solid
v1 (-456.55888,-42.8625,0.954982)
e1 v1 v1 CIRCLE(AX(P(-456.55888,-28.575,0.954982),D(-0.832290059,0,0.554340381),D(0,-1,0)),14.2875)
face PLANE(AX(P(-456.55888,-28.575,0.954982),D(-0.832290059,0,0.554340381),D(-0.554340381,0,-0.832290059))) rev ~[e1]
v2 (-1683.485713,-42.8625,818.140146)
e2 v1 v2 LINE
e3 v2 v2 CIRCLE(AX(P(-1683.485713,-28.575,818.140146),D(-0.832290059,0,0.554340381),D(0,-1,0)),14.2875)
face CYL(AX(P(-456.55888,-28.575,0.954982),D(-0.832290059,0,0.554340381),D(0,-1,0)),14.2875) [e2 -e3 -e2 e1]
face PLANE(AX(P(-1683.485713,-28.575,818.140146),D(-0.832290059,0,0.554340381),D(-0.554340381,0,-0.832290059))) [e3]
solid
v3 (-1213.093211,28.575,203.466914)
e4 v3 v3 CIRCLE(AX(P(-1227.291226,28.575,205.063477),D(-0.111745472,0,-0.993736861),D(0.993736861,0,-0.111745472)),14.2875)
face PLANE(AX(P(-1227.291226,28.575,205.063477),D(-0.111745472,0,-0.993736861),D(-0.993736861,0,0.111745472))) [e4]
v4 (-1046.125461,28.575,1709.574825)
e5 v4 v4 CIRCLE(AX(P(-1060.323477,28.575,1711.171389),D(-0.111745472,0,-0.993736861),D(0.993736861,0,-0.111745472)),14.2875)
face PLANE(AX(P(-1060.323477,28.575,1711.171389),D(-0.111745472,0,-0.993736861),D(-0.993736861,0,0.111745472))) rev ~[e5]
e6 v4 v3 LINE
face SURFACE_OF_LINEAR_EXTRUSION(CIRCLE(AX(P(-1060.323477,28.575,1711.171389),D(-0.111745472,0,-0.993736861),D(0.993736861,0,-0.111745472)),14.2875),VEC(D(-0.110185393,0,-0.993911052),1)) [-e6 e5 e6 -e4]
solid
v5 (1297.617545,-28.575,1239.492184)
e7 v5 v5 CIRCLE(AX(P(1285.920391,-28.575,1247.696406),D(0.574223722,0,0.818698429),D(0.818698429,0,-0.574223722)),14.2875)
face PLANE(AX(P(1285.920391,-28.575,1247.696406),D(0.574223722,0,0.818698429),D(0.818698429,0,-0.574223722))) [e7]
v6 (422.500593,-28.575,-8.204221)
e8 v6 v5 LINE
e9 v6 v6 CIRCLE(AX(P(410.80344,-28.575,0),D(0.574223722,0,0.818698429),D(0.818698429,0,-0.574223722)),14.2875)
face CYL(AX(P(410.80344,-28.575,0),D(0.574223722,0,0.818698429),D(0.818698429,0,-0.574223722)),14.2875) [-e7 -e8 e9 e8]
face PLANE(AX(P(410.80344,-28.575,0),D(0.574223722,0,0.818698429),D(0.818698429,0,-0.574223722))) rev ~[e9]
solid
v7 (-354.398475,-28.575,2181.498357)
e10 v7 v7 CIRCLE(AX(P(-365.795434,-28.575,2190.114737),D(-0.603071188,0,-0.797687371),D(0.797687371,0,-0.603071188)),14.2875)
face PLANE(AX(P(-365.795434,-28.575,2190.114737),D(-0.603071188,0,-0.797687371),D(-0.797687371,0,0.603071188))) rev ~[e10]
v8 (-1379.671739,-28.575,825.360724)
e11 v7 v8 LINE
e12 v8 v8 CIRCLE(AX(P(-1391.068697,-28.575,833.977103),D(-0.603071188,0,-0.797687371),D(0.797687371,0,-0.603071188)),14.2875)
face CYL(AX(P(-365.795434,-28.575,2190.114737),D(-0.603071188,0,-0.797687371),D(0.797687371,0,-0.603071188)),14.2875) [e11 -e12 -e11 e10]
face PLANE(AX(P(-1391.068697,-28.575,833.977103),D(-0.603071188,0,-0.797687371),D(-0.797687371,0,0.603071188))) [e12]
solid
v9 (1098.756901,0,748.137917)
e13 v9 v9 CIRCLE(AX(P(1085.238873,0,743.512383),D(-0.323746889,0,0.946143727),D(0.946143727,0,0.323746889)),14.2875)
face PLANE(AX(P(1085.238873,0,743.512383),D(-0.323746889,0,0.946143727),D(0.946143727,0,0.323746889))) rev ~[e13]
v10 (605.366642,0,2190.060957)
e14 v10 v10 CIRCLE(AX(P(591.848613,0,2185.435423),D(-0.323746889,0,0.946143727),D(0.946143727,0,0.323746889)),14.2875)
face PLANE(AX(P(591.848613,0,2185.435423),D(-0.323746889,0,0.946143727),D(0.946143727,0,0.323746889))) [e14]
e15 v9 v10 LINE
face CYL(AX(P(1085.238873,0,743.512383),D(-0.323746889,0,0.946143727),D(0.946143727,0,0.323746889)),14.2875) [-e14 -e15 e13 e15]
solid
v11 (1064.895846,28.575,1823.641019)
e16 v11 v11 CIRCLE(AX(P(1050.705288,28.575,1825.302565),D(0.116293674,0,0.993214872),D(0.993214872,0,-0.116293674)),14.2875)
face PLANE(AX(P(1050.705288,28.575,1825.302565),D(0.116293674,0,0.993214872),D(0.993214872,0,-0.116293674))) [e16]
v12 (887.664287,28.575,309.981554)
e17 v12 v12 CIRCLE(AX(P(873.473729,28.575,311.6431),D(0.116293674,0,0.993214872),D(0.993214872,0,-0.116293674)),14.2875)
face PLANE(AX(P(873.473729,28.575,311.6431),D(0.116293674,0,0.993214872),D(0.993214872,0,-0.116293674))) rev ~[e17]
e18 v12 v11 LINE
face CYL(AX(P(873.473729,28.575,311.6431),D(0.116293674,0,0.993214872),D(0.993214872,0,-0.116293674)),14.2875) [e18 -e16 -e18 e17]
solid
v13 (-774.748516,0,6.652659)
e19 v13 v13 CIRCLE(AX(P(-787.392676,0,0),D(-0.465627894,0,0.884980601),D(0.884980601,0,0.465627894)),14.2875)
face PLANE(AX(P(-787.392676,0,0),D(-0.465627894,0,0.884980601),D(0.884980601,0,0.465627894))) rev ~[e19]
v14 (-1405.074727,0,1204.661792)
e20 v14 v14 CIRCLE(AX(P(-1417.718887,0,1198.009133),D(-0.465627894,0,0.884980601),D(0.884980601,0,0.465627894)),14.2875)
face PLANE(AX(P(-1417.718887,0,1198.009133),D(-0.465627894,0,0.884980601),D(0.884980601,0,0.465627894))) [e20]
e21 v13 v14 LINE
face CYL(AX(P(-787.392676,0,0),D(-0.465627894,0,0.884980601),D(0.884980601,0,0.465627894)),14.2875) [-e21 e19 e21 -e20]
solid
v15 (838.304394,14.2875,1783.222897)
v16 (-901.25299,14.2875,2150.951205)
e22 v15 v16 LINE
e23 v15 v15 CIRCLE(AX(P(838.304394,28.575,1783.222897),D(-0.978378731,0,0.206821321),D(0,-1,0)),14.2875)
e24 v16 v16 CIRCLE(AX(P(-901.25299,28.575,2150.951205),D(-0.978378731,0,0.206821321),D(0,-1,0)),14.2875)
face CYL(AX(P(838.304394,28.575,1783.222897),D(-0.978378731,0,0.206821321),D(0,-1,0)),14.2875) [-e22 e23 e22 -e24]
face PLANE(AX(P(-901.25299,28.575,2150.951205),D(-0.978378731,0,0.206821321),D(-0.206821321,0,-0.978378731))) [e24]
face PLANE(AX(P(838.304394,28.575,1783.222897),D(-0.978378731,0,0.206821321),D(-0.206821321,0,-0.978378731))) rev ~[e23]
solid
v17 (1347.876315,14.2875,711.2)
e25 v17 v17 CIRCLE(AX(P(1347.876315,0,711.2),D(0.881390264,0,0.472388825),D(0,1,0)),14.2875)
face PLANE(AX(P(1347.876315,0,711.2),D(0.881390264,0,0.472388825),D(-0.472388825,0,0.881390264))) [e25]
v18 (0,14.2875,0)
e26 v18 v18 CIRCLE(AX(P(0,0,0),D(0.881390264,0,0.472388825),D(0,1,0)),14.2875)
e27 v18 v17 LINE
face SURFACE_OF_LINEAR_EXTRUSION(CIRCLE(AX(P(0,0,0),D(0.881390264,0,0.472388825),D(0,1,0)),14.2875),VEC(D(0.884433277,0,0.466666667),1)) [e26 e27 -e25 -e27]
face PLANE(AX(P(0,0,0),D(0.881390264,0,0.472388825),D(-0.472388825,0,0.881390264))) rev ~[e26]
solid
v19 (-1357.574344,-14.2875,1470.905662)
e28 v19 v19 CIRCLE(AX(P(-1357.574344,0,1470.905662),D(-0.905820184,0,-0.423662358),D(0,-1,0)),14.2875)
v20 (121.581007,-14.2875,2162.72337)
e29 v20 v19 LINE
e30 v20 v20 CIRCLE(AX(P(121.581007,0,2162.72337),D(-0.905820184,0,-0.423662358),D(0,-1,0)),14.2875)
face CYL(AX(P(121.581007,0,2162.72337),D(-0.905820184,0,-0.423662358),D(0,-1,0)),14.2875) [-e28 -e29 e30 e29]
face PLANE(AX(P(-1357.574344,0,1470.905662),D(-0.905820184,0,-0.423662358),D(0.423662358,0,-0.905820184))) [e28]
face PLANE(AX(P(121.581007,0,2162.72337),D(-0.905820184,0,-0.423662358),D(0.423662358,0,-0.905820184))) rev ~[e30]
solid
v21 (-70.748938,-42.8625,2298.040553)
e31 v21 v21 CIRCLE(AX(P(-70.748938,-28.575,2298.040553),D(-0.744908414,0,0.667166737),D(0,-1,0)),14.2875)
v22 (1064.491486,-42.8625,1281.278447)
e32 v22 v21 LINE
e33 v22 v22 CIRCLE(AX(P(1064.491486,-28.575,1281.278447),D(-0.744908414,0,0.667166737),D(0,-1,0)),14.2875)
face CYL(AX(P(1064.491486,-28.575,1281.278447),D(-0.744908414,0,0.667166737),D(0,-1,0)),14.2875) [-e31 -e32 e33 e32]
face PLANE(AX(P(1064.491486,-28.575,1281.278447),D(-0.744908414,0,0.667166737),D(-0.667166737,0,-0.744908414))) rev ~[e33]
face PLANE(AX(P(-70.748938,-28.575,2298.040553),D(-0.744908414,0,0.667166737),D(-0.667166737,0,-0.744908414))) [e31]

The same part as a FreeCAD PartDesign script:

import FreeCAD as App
import Part
import Sketcher

V = App.Vector
Q = App.Units.Quantity

doc = App.newDocument("Part")
params = doc.addObject("Spreadsheet::Sheet", "Params")
for row, (alias, value) in enumerate([
    ("sketch1_diameter", "1.125 in"),
    ("sketch2_width", "60 in"),
    ("sketch3_diameter", "1.125 in"),
    ("sketch4_width", "60 in"),
    ("sketch5_diameter", "1.125 in"),
    ("sketch6_width", "60 in"),
    ("sketch7_diameter", "1.125 in"),
    ("sketch8_width", "60 in"),
    ("sketch9_diameter", "1.125 in"),
    ("sketch10_width", "60 in"),
    ("sketch11_diameter", "1.125 in"),
    ("sketch12_width", "70 in"),
    ("sketch13_diameter", "1.125 in"),
    ("sketch15_diameter", "1.125 in"),
    ("sketch17_diameter", "1.125 in"),
    ("sketch19_diameter", "1.125 in"),
    ("sketch21_diameter", "1.125 in"),
], start=1):
    params.set(f"A{row}", alias)
    params.set(f"B{row}", "=" + value)
    params.setAlias(f"B{row}", alias)

body = doc.addObject("PartDesign::Body", "Body")

sketch1 = body.newObject("Sketcher::SketchObject", "Sketch")
sketch1.Placement = App.Placement(V(0, 0, 0), App.Rotation(V(0, 1, 0), V(-0.472388825, 0, 0.881390264), V(0.881390264, 0, 0.472388825), "ZXY"))
sketch1.addGeometry(Part.Circle(V(0, 0, 0), V(0, 0, 1), 14), False)
sketch1.addConstraint([
    Sketcher.Constraint("Coincident", 0, 3, -1, 1),
    Sketcher.Constraint("Diameter", 0, Q("1.125 in")),
])
sketch1.setExpression("Constraints[1]", "Params.sketch1_diameter")

sketch2 = body.newObject("Sketcher::SketchObject", "Sketch001")
sketch2.Placement = App.Placement(V(0, 0, 0), App.Rotation(V(0.884433277, 0, 0.466666667), V(0, 1, 0), V(-0.466666667, 0, 0.884433277), "ZXY"))
sketch2.addGeometry(Part.LineSegment(V(0, 0, 0), V(1524, 0, 0)), False)
sketch2.addConstraint([
    Sketcher.Constraint("Horizontal", 0),
    Sketcher.Constraint("Coincident", 0, 1, -1, 1),
    Sketcher.Constraint("DistanceX", 0, 1, 0, 2, Q("60 in")),
])
sketch2.setExpression("Constraints[2]", "Params.sketch2_width")
doc.recompute()

additivepipe = body.newObject("PartDesign::AdditivePipe", "AdditivePipe")
additivepipe.Profile = sketch1
additivepipe.Spine = (sketch2, ["Edge1"])
body2 = doc.addObject("PartDesign::Body", "Body001")

sketch3 = body2.newObject("Sketcher::SketchObject", "Sketch002")
sketch3.Placement = App.Placement(V(135.455402, 0, 193.125294), App.Rotation(V(0.818698429, 0, -0.574223722), V(0, 1.000000001, 0), V(0.574223722, 0, 0.818698429), "ZXY"))
sketch3.addGeometry(Part.Circle(V(336, -29, 0), V(0, 0, 1), 14), False)
sketch3.addConstraint([
    Sketcher.Constraint("Diameter", 0, Q("1.125 in")),
    Sketcher.Constraint("DistanceY", 0, 3, -1, 1, Q("1.125 in")),
    Sketcher.Constraint("DistanceX", -1, 1, 0, 3, 336.324131),
])
sketch3.setExpression("Constraints[0]", "Params.sketch3_diameter")

sketch4 = body2.newObject("Sketcher::SketchObject", "Sketch003")
sketch4.Placement = App.Placement(V(275.348037, 0, -193.125294), App.Rotation(V(0.574223722, 0, 0.818698429), V(0, 1.000000001, 0), V(-0.818698429, 0, 0.574223722), "ZXY"))
sketch4.addGeometry(Part.LineSegment(V(236, -29, 0), V(1760, -29, 0)), False)
sketch4.addConstraint([
    Sketcher.Constraint("Horizontal", 0),
    Sketcher.Constraint("DistanceX", 0, 1, 0, 2, Q("60 in")),
    Sketcher.Constraint("DistanceY", 0, 1, -1, 1, Q("1.125 in")),
    Sketcher.Constraint("DistanceX", -1, 1, 0, 1, 235.89308),
])
sketch4.setExpression("Constraints[1]", "Params.sketch4_width")
doc.recompute()

additivepipe2 = body2.newObject("PartDesign::AdditivePipe", "AdditivePipe001")
additivepipe2.Profile = sketch3
additivepipe2.Spine = (sketch4, ["Edge1"])
body3 = doc.addObject("PartDesign::Body", "Body002")

sketch5 = body3.newObject("Sketcher::SketchObject", "Sketch004")
sketch5.Placement = App.Placement(V(47.809263, 0, 408.31861), App.Rotation(V(0.993214872, 0, -0.116293674), V(0, 1.000000001, 0), V(0.116293674, 0, 0.993214872), "ZXY"))
sketch5.addGeometry(Part.Circle(V(831, 29, 0), V(0, 0, 1), 14), False)
sketch5.addConstraint([
    Sketcher.Constraint("Diameter", 0, Q("1.125 in")),
    Sketcher.Constraint("DistanceY", -1, 1, 0, 3, Q("1.125 in")),
    Sketcher.Constraint("DistanceX", -1, 1, 0, 3, 831.304978),
])
sketch5.setExpression("Constraints[0]", "Params.sketch5_diameter")

sketch6 = body3.newObject("Sketcher::SketchObject", "Sketch005")
sketch6.Placement = App.Placement(V(825.664466, 0, -96.67551), App.Rotation(V(0.116293674, 0, 0.993214872), V(0, 1.000000001, 0), V(-0.993214872, 0, 0.116293674), "ZXY"))
sketch6.addGeometry(Part.LineSegment(V(411, 29, 0), V(1935, 29, 0)), False)
sketch6.addConstraint([
    Sketcher.Constraint("Horizontal", 0),
    Sketcher.Constraint("DistanceX", 0, 1, 0, 2, Q("60 in")),
    Sketcher.Constraint("DistanceY", -1, 1, 0, 1, Q("1.125 in")),
    Sketcher.Constraint("DistanceX", -1, 1, 0, 1, 411.108031),
])
sketch6.setExpression("Constraints[1]", "Params.sketch6_width")
doc.recompute()

additivepipe3 = body3.newObject("PartDesign::AdditivePipe", "AdditivePipe002")
additivepipe3.Profile = sketch5
additivepipe3.Spine = (sketch6, ["Edge1"])
body4 = doc.addObject("PartDesign::Body", "Body003")

sketch7 = body4.newObject("Sketcher::SketchObject", "Sketch006")
sketch7.Placement = App.Placement(V(-113.999978, 0, 333.162627), App.Rotation(V(0.946143727, 0, 0.323746889), V(0, 1, 0), V(-0.323746889, 0, 0.946143727), "ZXY"))
sketch7.addGeometry(Part.Circle(V(1268, 0, 0), V(0, 0, 1), 14), False)
sketch7.addConstraint([
    Sketcher.Constraint("PointOnObject", 0, 3, -1),
    Sketcher.Constraint("Diameter", 0, Q("1.125 in")),
    Sketcher.Constraint("DistanceX", -1, 1, 0, 3, 1267.501773),
])
sketch7.setExpression("Constraints[1]", "Params.sketch7_diameter")

sketch8 = body4.newObject("Sketcher::SketchObject", "Sketch007")
sketch8.Placement = App.Placement(V(1199.238851, 0, 410.349756), App.Rotation(V(-0.323746889, 0, 0.946143727), V(0, 1, 0), V(-0.946143727, 0, -0.323746889), "ZXY"))
sketch8.addGeometry(Part.LineSegment(V(352, 0, 0), V(1876, 0, 0)), False)
sketch8.addConstraint([
    Sketcher.Constraint("Horizontal", 0),
    Sketcher.Constraint("PointOnObject", 0, 1, -1),
    Sketcher.Constraint("DistanceX", 0, 1, 0, 2, Q("60 in")),
    Sketcher.Constraint("DistanceX", -1, 1, 0, 1, 352.126868),
])
sketch8.setExpression("Constraints[2]", "Params.sketch8_width")
doc.recompute()

additivepipe4 = body4.newObject("PartDesign::AdditivePipe", "AdditivePipe003")
additivepipe4.Profile = sketch7
additivepipe4.Spine = (sketch8, ["Edge1"])
body5 = doc.addObject("PartDesign::Body", "Body004")

sketch9 = body5.newObject("Sketcher::SketchObject", "Sketch008")
sketch9.Placement = App.Placement(V(-46.093216, 0, 41.28274), App.Rotation(V(0, -1, 0), V(0.667166737, 0, 0.744908414), V(-0.744908414, 0, 0.667166737), "ZXY"))
sketch9.addGeometry(Part.Circle(V(29, 1665, 0), V(0, 0, 1), 14), False)
sketch9.addConstraint([
    Sketcher.Constraint("Diameter", 0, Q("1.125 in")),
    Sketcher.Constraint("DistanceX", -1, 1, 0, 3, Q("1.125 in")),
    Sketcher.Constraint("DistanceY", -1, 1, 0, 3, 1664.628407),
])
sketch9.setExpression("Constraints[0]", "Params.sketch9_diameter")

sketch10 = body5.newObject("Sketcher::SketchObject", "Sketch009")
sketch10.Placement = App.Placement(V(1110.584702, 0, 1239.995707), App.Rotation(V(-0.744908414, 0, 0.667166737), V(0, 1, 0), V(-0.667166737, 0, -0.744908414), "ZXY"))
sketch10.addGeometry(Part.LineSegment(V(62, -29, 0), V(1586, -29, 0)), False)
sketch10.addConstraint([
    Sketcher.Constraint("Horizontal", 0),
    Sketcher.Constraint("DistanceX", 0, 1, 0, 2, Q("60 in")),
    Sketcher.Constraint("DistanceY", 0, 1, -1, 1, Q("1.125 in")),
    Sketcher.Constraint("DistanceX", -1, 1, 0, 1, 61.877695),
])
sketch10.setExpression("Constraints[1]", "Params.sketch10_width")
doc.recompute()

additivepipe5 = body5.newObject("PartDesign::AdditivePipe", "AdditivePipe004")
additivepipe5.Profile = sketch9
additivepipe5.Spine = (sketch10, ["Edge1"])
body6 = doc.addObject("PartDesign::Body", "Body005")

sketch11 = body6.newObject("Sketcher::SketchObject", "Sketch010")
sketch11.Placement = App.Placement(V(441.611468, 0, -93.353079), App.Rotation(V(0, -1, 0), V(0.206821321, 0, 0.978378731), V(-0.978378731, 0, 0.206821321), "ZXY"))
sketch11.addGeometry(Part.Circle(V(-29, 1918, 0), V(0, 0, 1), 14), False)
sketch11.addConstraint([
    Sketcher.Constraint("Diameter", 0, Q("1.125 in")),
    Sketcher.Constraint("DistanceX", 0, 3, -1, 1, Q("1.125 in")),
    Sketcher.Constraint("DistanceY", -1, 1, 0, 3, 1918.046578),
])
sketch11.setExpression("Constraints[0]", "Params.sketch11_diameter")

sketch12 = body6.newObject("Sketcher::SketchObject", "Sketch011")
sketch12.Placement = App.Placement(V(396.692926, 0, 1876.575976), App.Rotation(V(-0.978378731, 0, 0.206821321), V(0, 1, 0), V(-0.206821321, 0, -0.978378731), "ZXY"))
sketch12.addGeometry(Part.LineSegment(V(-451, 29, 0), V(1327, 29, 0)), False)
sketch12.addConstraint([
    Sketcher.Constraint("Horizontal", 0),
    Sketcher.Constraint("DistanceX", 0, 1, 0, 2, Q("70 in")),
    Sketcher.Constraint("DistanceY", -1, 1, 0, 1, Q("1.125 in")),
    Sketcher.Constraint("DistanceX", 0, 1, -1, 1, 451.370675),
])
sketch12.setExpression("Constraints[1]", "Params.sketch12_width")
doc.recompute()

additivepipe6 = body6.newObject("PartDesign::AdditivePipe", "AdditivePipe005")
additivepipe6.Profile = sketch11
additivepipe6.Spine = (sketch12, ["Edge1"])
body7 = doc.addObject("PartDesign::Body", "Body006")

sketch13 = body7.newObject("Sketcher::SketchObject", "Sketch012")
sketch13.Placement = App.Placement(V(929.72932, 0, 434.844932), App.Rotation(V(0, -1, 0), V(-0.423662358, 0, 0.905820184), V(-0.905820184, 0, -0.423662358), "ZXY"))
sketch13.addGeometry(Part.Circle(V(0, 1908, 0), V(0, 0, 1), 14), False)
sketch13.addConstraint([
    Sketcher.Constraint("PointOnObject", 0, 3, -2),
    Sketcher.Constraint("Diameter", 0, Q("1.125 in")),
    Sketcher.Constraint("DistanceY", -1, 1, 0, 3, 1907.529184),
])
sketch13.setExpression("Constraints[1]", "Params.sketch13_diameter")

sketch14 = body7.newObject("Sketcher::SketchObject", "Sketch013")
sketch14.Placement = App.Placement(V(-808.148313, 0, 1727.878438), App.Rotation(V(-0.905820184, 0, -0.423662358), V(0, 0.999999999, 0), V(0.423662358, 0, -0.905820184), "ZXY"))
sketch14.addGeometry(Part.LineSegment(V(-1026, 0, 0), V(607, 0, 0)), False)
sketch14.addConstraint([
    Sketcher.Constraint("Horizontal", 0),
    Sketcher.Constraint("PointOnObject", 0, 1, -1),
    Sketcher.Constraint("DistanceX", 0, 1, 0, 2, 1632.945893),
    Sketcher.Constraint("DistanceX", -1, 1, 0, 2, 606.550881),
])
doc.recompute()

additivepipe7 = body7.newObject("PartDesign::AdditivePipe", "AdditivePipe006")
additivepipe7.Profile = sketch13
additivepipe7.Spine = (sketch14, ["Edge1"])
body8 = doc.addObject("PartDesign::Body", "Body007")

sketch15 = body8.newObject("Sketcher::SketchObject", "Sketch014")
sketch15.Placement = App.Placement(V(920.54365, 0, 1217.610886), App.Rotation(V(0.797687371, 0, -0.603071188), V(0, -1, 0), V(-0.603071188, 0, -0.797687371), "ZXY"))
sketch15.addGeometry(Part.Circle(V(-1613, 29, 0), V(0, 0, 1), 14), False)
sketch15.addConstraint([
    Sketcher.Constraint("Diameter", 0, Q("1.125 in")),
    Sketcher.Constraint("DistanceY", -1, 1, 0, 3, Q("1.125 in")),
    Sketcher.Constraint("DistanceX", 0, 3, -1, 1, 1612.585494),
])
sketch15.setExpression("Constraints[0]", "Params.sketch15_diameter")

sketch16 = body8.newObject("Sketcher::SketchObject", "Sketch015")
sketch16.Placement = App.Placement(V(-1286.339084, 0, 972.50385), App.Rotation(V(-0.603071188, 0, -0.797687371), V(0, 1, 0), V(0.797687371, 0, -0.603071188), "ZXY"))
sketch16.addGeometry(Part.LineSegment(V(-1526, -29, 0), V(174, -29, 0)), False)
sketch16.addConstraint([
    Sketcher.Constraint("Horizontal", 0),
    Sketcher.Constraint("DistanceY", 0, 1, -1, 1, Q("1.125 in")),
    Sketcher.Constraint("DistanceX", 0, 1, 0, 2, 1700.086628),
    Sketcher.Constraint("DistanceX", 0, 1, -1, 1, 1526.426179),
])
doc.recompute()

additivepipe8 = body8.newObject("PartDesign::AdditivePipe", "AdditivePipe007")
additivepipe8.Profile = sketch15
additivepipe8.Spine = (sketch16, ["Edge1"])
body9 = doc.addObject("PartDesign::Body", "Body008")

sketch17 = body9.newObject("Sketcher::SketchObject", "Sketch016")
sketch17.Placement = App.Placement(V(176.777732, 0, 1572.059654), App.Rotation(V(0.993736861, 0, -0.111745472), V(0, -0.999999999, 0), V(-0.111745472, 0, -0.993736861), "ZXY"))
sketch17.addGeometry(Part.Circle(V(-1245, -29, 0), V(0, 0, 1), 14), False)
sketch17.addConstraint([
    Sketcher.Constraint("Diameter", 0, Q("1.125 in")),
    Sketcher.Constraint("DistanceY", 0, 3, -1, 1, Q("1.125 in")),
    Sketcher.Constraint("DistanceX", 0, 3, -1, 1, 1244.898178),
])
sketch17.setExpression("Constraints[0]", "Params.sketch17_diameter")

sketch18 = body9.newObject("Sketcher::SketchObject", "Sketch017")
sketch18.Placement = App.Placement(V(-1234.848324, 0, 136.895799), App.Rotation(V(-0.110185393, 0, -0.993911052), V(0, 1, 0), V(0.993911052, 0, -0.110185393), "ZXY"))
sketch18.addGeometry(Part.LineSegment(V(-1584, 29, 0), V(-69, 29, 0)), False)
sketch18.addConstraint([
    Sketcher.Constraint("Horizontal", 0),
    Sketcher.Constraint("DistanceY", -1, 1, 0, 1, Q("1.125 in")),
    Sketcher.Constraint("DistanceX", 0, 1, 0, 2, 1515.334706),
    Sketcher.Constraint("DistanceX", 0, 2, -1, 1, 68.585291),
])
doc.recompute()

additivepipe9 = body9.newObject("PartDesign::AdditivePipe", "AdditivePipe008")
additivepipe9.Profile = sketch17
additivepipe9.Spine = (sketch18, ["Edge1"])
body10 = doc.addObject("PartDesign::Body", "Body009")

sketch19 = body10.newObject("Sketcher::SketchObject", "Sketch018")
sketch19.Placement = App.Placement(V(-801.040294, 0, 1522.471335), App.Rotation(V(0.884980601, 0, 0.465627894), V(0, 1, 0), V(-0.465627894, 0, 0.884980601), "ZXY"))
sketch19.addGeometry(Part.Circle(V(-697, 0, 0), V(0, 0, 1), 14), False)
sketch19.addConstraint([
    Sketcher.Constraint("PointOnObject", 0, 3, -1),
    Sketcher.Constraint("Diameter", 0, Q("1.125 in")),
    Sketcher.Constraint("DistanceX", 0, 3, -1, 1, 696.827244),
])
sketch19.setExpression("Constraints[1]", "Params.sketch19_diameter")

sketch20 = body10.newObject("Sketcher::SketchObject", "Sketch019")
sketch20.Placement = App.Placement(V(-616.678593, 0, -324.462202), App.Rotation(V(-0.465627894, 0, 0.884980601), V(0, 1, 0), V(-0.884980601, 0, -0.465627894), "ZXY"))
sketch20.addGeometry(Part.LineSegment(V(367, 0, 0), V(1720, 0, 0)), False)
sketch20.addConstraint([
    Sketcher.Constraint("Horizontal", 0),
    Sketcher.Constraint("PointOnObject", 0, 1, -1),
    Sketcher.Constraint("DistanceX", 0, 1, 0, 2, 1353.712309),
    Sketcher.Constraint("DistanceX", -1, 1, 0, 1, 366.631993),
])
doc.recompute()

additivepipe10 = body10.newObject("PartDesign::AdditivePipe", "AdditivePipe009")
additivepipe10.Profile = sketch19
additivepipe10.Spine = (sketch20, ["Edge1"])
body11 = doc.addObject("PartDesign::Body", "Body010")

sketch21 = body11.newObject("Sketcher::SketchObject", "Sketch020")
sketch21.Placement = App.Placement(V(-1543.62885, 0, 1028.122101), App.Rotation(V(0, -1, 0), V(0.554340381, 0, 0.832290059), V(-0.832290059, 0, 0.554340381), "ZXY"))
sketch21.addGeometry(Part.Circle(V(29, -252, 0), V(0, 0, 1), 14), False)
sketch21.addConstraint([
    Sketcher.Constraint("Diameter", 0, Q("1.125 in")),
    Sketcher.Constraint("DistanceX", -1, 1, 0, 3, Q("1.125 in")),
    Sketcher.Constraint("DistanceY", 0, 3, -1, 1, 252.294201),
])
sketch21.setExpression("Constraints[0]", "Params.sketch21_diameter")

sketch22 = body11.newObject("Sketcher::SketchObject", "Sketch021")
sketch22.Placement = App.Placement(V(-139.856863, 0, -209.981955), App.Rotation(V(-0.832290059, 0, 0.554340381), V(0, 1, 0), V(-0.554340381, 0, -0.832290059), "ZXY"))
sketch22.addGeometry(Part.LineSegment(V(379, -29, 0), V(1853, -29, 0)), False)
sketch22.addConstraint([
    Sketcher.Constraint("Horizontal", 0),
    Sketcher.Constraint("DistanceY", 0, 1, -1, 1, Q("1.125 in")),
    Sketcher.Constraint("DistanceX", 0, 1, 0, 2, 1474.157742),
    Sketcher.Constraint("DistanceX", -1, 1, 0, 1, 378.796066),
])
doc.recompute()

additivepipe11 = body11.newObject("PartDesign::AdditivePipe", "AdditivePipe010")
additivepipe11.Profile = sketch21
additivepipe11.Spine = (sketch22, ["Edge1"])

doc.recompute()
